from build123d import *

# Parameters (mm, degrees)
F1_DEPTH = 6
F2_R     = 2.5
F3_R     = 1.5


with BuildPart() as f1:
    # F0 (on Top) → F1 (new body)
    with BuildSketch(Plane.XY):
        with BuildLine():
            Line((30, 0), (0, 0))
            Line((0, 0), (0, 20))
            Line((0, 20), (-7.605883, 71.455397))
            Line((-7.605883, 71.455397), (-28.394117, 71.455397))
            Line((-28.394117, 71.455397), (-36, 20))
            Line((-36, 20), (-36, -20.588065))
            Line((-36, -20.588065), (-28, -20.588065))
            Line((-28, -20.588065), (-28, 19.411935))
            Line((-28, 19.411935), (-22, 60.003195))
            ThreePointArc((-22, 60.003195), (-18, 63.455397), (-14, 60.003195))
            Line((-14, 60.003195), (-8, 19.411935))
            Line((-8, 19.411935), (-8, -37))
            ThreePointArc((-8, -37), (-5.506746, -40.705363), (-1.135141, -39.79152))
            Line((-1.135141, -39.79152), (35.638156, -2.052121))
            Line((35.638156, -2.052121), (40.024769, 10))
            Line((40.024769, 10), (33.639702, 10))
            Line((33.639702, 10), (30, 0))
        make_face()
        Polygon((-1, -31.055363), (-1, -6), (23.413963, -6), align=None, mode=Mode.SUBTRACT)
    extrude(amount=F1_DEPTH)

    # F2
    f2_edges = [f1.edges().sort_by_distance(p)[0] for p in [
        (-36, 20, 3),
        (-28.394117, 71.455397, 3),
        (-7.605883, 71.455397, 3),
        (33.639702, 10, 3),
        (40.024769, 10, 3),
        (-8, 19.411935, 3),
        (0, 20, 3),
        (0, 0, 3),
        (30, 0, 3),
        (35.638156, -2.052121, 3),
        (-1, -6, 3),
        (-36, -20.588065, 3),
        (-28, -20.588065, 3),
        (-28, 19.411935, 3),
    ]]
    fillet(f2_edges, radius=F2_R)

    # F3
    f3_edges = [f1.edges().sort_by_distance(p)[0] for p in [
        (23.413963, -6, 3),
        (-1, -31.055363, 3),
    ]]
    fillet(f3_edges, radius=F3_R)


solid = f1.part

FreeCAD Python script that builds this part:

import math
import FreeCAD as App
import Part
import Sketcher

V = App.Vector
Q = App.Units.Quantity


def edges_at(feature, points):
    """Names of the edges that pass closest to the given points."""
    edges = feature.Shape.Edges
    near = lambda p: min(range(len(edges)), key=lambda i: edges[i].distToShape(Part.Vertex(*p))[0])
    return sorted({f"Edge{near(p) + 1}" for p in points})


def add_polygon(sketch, points):
    """Adds a closed chain of lines whose ends are joined by coincident constraints."""
    first, n = sketch.GeometryCount, len(points)
    for a, b in zip(points, points[1:] + points[:1]):
        sketch.addGeometry(Part.LineSegment(App.Vector(*a, 0), App.Vector(*b, 0)), False)
    for i in range(n):
        sketch.addConstraint(Sketcher.Constraint("Coincident", first + i, 2, first + (i + 1) % n, 1))

doc = App.newDocument("Part")
params = doc.addObject("Spreadsheet::Sheet", "Params")
for row, (alias, value) in enumerate([
    ("sketch1_radius", "4 mm"),
    ("sketch1_width", "30 mm"),
    ("sketch1_width2", "8 mm"),
    ("sketch1_height", "20 mm"),
    ("sketch1_height2", "40 mm"),
    ("pad1_length", "6 mm"),
    ("fillet_radius", "2.5 mm"),
    ("fillet2_radius", "1.5 mm"),
], start=1):
    params.set(f"A{row}", alias)
    params.set(f"B{row}", "=" + value)
    params.setAlias(f"B{row}", alias)

body = doc.addObject("PartDesign::Body", "Body")

# Sketch on XY plane
sketch1 = body.newObject("Sketcher::SketchObject", "Sketch")
sketch1.AttachmentSupport = (doc.getObject("XY_Plane"), [""])
sketch1.MapMode = "FlatFace"
sketch1.addGeometry(Part.LineSegment(V(30, 0, 0), V(0, 0, 0)), False)  # 0
sketch1.addGeometry(Part.LineSegment(V(0, 0, 0), V(0, 20, 0)), False)  # 1
sketch1.addGeometry(Part.LineSegment(V(0, 20, 0), V(-7.6, 71.5, 0)), False)  # 2
sketch1.addGeometry(Part.LineSegment(V(-7.6, 71.5, 0), V(-28.4, 71.5, 0)), False)  # 3
sketch1.addGeometry(Part.LineSegment(V(-28.4, 71.5, 0), V(-36, 20, 0)), False)  # 4
sketch1.addGeometry(Part.LineSegment(V(-36, 20, 0), V(-36, -20.6, 0)), False)  # 5
sketch1.addGeometry(Part.LineSegment(V(-36, -20.6, 0), V(-28, -20.6, 0)), False)  # 6
sketch1.addGeometry(Part.LineSegment(V(-28, -20.6, 0), V(-28, 19.4, 0)), False)  # 7
sketch1.addGeometry(Part.LineSegment(V(-28, 19.4, 0), V(-22, 60, 0)), False)  # 8
sketch1.addGeometry(Part.ArcOfCircle(Part.Circle(V(-18, 59.4, 0), V(0, 0, 1), 4), math.radians(8), math.radians(172)), False)  # 9
sketch1.addGeometry(Part.LineSegment(V(-14, 60, 0), V(-8, 19.4, 0)), False)  # 10
sketch1.addGeometry(Part.LineSegment(V(-8, 19.4, 0), V(-8, -37, 0)), False)  # 11
sketch1.addGeometry(Part.ArcOfCircle(Part.Circle(V(-4, -37, 0), V(0, 0, 1), 4), math.radians(-180), math.radians(-44)), False)  # 12
sketch1.addGeometry(Part.LineSegment(V(-1.1, -39.8, 0), V(35.6, -2.1, 0)), False)  # 13
sketch1.addGeometry(Part.LineSegment(V(35.6, -2.1, 0), V(40, 10, 0)), False)  # 14
sketch1.addGeometry(Part.LineSegment(V(40, 10, 0), V(33.6, 10, 0)), False)  # 15
sketch1.addGeometry(Part.LineSegment(V(33.6, 10, 0), V(30, 0, 0)), False)  # 16
add_polygon(sketch1, [(23.4, -6), (-1, -31.1), (-1, -6)])  # lines 17-19
sketch1.addConstraint(Sketcher.Constraint("Coincident", 0, 2, 1, 1))
sketch1.addConstraint(Sketcher.Constraint("Coincident", 1, 2, 2, 1))
sketch1.addConstraint(Sketcher.Constraint("Coincident", 2, 2, 3, 1))
sketch1.addConstraint(Sketcher.Constraint("Coincident", 3, 2, 4, 1))
sketch1.addConstraint(Sketcher.Constraint("Coincident", 4, 2, 5, 1))
sketch1.addConstraint(Sketcher.Constraint("Coincident", 5, 2, 6, 1))
sketch1.addConstraint(Sketcher.Constraint("Coincident", 6, 2, 7, 1))
sketch1.addConstraint(Sketcher.Constraint("Coincident", 7, 2, 8, 1))
sketch1.addConstraint(Sketcher.Constraint("Tangent", 8, 2, 9, 2))
sketch1.addConstraint(Sketcher.Constraint("Tangent", 9, 1, 10, 1))
sketch1.addConstraint(Sketcher.Constraint("Coincident", 10, 2, 11, 1))
sketch1.addConstraint(Sketcher.Constraint("Tangent", 11, 2, 12, 1))
sketch1.addConstraint(Sketcher.Constraint("Tangent", 12, 2, 13, 1))
sketch1.addConstraint(Sketcher.Constraint("Coincident", 13, 2, 14, 1))
sketch1.addConstraint(Sketcher.Constraint("Coincident", 14, 2, 15, 1))
sketch1.addConstraint(Sketcher.Constraint("Coincident", 15, 2, 16, 1))
sketch1.addConstraint(Sketcher.Constraint("Coincident", 16, 2, 0, 1))
sketch1.addConstraint(Sketcher.Constraint("Horizontal", 0))
sketch1.addConstraint(Sketcher.Constraint("Vertical", 1))
sketch1.addConstraint(Sketcher.Constraint("Horizontal", 3))
sketch1.addConstraint(Sketcher.Constraint("Vertical", 5))
sketch1.addConstraint(Sketcher.Constraint("Horizontal", 6))
sketch1.addConstraint(Sketcher.Constraint("Vertical", 7))
sketch1.addConstraint(Sketcher.Constraint("Vertical", 11))
sketch1.addConstraint(Sketcher.Constraint("Horizontal", 15))
sketch1.addConstraint(Sketcher.Constraint("Vertical", 18))
sketch1.addConstraint(Sketcher.Constraint("Horizontal", 19))
sketch1.addConstraint(Sketcher.Constraint("Coincident", 0, 2, -1, 1))
sketch1.addConstraint(Sketcher.Constraint("Parallel", 4, 8))
sketch1.addConstraint(Sketcher.Constraint("Parallel", 2, 10))
sketch1.addConstraint(Sketcher.Constraint("Parallel", 14, 16))
sketch1.addConstraint(Sketcher.Constraint("Parallel", 13, 17))
sketch1.addConstraint(Sketcher.Constraint("Horizontal", 1, 2, 4, 2))
sketch1.addConstraint(Sketcher.Constraint("Horizontal", 8, 2, 9, 1))
sketch1.addConstraint(Sketcher.Constraint("Horizontal", 7, 2, 10, 2))
sketch1.addConstraint(Sketcher.Constraint("Radius", 12, Q("4 mm")))
sketch1.addConstraint(Sketcher.Constraint("DistanceX", 0, 2, 0, 1, Q("30 mm")))
sketch1.addConstraint(Sketcher.Constraint("DistanceX", 6, 1, 6, 2, Q("8 mm")))
sketch1.addConstraint(Sketcher.Constraint("DistanceY", 1, 1, 1, 2, Q("20 mm")))
sketch1.addConstraint(Sketcher.Constraint("DistanceY", 7, 1, 7, 2, Q("40 mm")))
sketch1.addConstraint(Sketcher.Constraint("Angle", 14, Q("70.000001 deg")))
sketch1.addConstraint(Sketcher.Constraint("DistanceX", 9, 3, -1, 1, Q("18 mm")))
sketch1.addConstraint(Sketcher.Constraint("DistanceX", 12, 3, -1, 1, Q("4 mm")))
sketch1.addConstraint(Sketcher.Constraint("DistanceY", 12, 3, -1, 1, Q("37 mm")))
sketch1.addConstraint(Sketcher.Constraint("DistanceX", 8, 2, -1, 1, Q("22 mm")))
sketch1.addConstraint(Sketcher.Constraint("DistanceY", -1, 1, 14, 2, Q("10 mm")))
sketch1.addConstraint(Sketcher.Constraint("DistanceX", 17, 2, -1, 1, Q("1 mm")))
sketch1.addConstraint(Sketcher.Constraint("DistanceY", 18, 2, -1, 1, Q("6 mm")))
sketch1.addConstraint(Sketcher.Constraint("DistanceY", 5, 2, 9, 3, Q("80 mm")))
sketch1.addConstraint(Sketcher.Constraint("Distance", 14, Q("12.825599 mm")))
sketch1.addConstraint(Sketcher.Constraint("DistanceY", 9, 1, 2, 2, Q("11.452202 mm")))
sketch1.addConstraint(Sketcher.Constraint("DistanceY", 12, 2, 13, 2, Q("37.739399 mm")))
sketch1.addConstraint(Sketcher.Constraint("Distance", 2, Q("52.014492 mm")))
sketch1.addConstraint(Sketcher.Constraint("DistanceX", 19, 1, 19, 2, Q("24.413963 mm")))
sketch1.setExpression("Constraints[38]", "Params.sketch1_radius")
sketch1.setExpression("Constraints[39]", "Params.sketch1_width")
sketch1.setExpression("Constraints[40]", "Params.sketch1_width2")
sketch1.setExpression("Constraints[41]", "Params.sketch1_height")
sketch1.setExpression("Constraints[42]", "Params.sketch1_height2")
pad1 = body.newObject("PartDesign::Pad", "Pad")
pad1.Profile = sketch1
pad1.setExpression("Length", "Params.pad1_length")
doc.recompute()

fillet = body.newObject("PartDesign::Fillet", "Fillet")
fillet.Base = (pad1, edges_at(pad1, [
    (-36, 20, 3),
    (-28.394, 71.455, 3),
    (-7.606, 71.455, 3),
    (33.64, 10, 3),
    (40.025, 10, 3),
    (-8, 19.412, 3),
    (0, 20, 3),
    (0, 0, 3),
    (30, 0, 3),
    (35.638, -2.052, 3),
    (-1, -6, 3),
    (-36, -20.588, 3),
    (-28, -20.588, 3),
    (-28, 19.412, 3),
]))
fillet.setExpression("Radius", "Params.fillet_radius")
doc.recompute()

fillet2 = body.newObject("PartDesign::Fillet", "Fillet001")
fillet2.Base = (fillet, edges_at(fillet, [(23.414, -6, 3), (-1, -31.055, 3)]))
fillet2.setExpression("Radius", "Params.fillet2_radius")

doc.recompute()
